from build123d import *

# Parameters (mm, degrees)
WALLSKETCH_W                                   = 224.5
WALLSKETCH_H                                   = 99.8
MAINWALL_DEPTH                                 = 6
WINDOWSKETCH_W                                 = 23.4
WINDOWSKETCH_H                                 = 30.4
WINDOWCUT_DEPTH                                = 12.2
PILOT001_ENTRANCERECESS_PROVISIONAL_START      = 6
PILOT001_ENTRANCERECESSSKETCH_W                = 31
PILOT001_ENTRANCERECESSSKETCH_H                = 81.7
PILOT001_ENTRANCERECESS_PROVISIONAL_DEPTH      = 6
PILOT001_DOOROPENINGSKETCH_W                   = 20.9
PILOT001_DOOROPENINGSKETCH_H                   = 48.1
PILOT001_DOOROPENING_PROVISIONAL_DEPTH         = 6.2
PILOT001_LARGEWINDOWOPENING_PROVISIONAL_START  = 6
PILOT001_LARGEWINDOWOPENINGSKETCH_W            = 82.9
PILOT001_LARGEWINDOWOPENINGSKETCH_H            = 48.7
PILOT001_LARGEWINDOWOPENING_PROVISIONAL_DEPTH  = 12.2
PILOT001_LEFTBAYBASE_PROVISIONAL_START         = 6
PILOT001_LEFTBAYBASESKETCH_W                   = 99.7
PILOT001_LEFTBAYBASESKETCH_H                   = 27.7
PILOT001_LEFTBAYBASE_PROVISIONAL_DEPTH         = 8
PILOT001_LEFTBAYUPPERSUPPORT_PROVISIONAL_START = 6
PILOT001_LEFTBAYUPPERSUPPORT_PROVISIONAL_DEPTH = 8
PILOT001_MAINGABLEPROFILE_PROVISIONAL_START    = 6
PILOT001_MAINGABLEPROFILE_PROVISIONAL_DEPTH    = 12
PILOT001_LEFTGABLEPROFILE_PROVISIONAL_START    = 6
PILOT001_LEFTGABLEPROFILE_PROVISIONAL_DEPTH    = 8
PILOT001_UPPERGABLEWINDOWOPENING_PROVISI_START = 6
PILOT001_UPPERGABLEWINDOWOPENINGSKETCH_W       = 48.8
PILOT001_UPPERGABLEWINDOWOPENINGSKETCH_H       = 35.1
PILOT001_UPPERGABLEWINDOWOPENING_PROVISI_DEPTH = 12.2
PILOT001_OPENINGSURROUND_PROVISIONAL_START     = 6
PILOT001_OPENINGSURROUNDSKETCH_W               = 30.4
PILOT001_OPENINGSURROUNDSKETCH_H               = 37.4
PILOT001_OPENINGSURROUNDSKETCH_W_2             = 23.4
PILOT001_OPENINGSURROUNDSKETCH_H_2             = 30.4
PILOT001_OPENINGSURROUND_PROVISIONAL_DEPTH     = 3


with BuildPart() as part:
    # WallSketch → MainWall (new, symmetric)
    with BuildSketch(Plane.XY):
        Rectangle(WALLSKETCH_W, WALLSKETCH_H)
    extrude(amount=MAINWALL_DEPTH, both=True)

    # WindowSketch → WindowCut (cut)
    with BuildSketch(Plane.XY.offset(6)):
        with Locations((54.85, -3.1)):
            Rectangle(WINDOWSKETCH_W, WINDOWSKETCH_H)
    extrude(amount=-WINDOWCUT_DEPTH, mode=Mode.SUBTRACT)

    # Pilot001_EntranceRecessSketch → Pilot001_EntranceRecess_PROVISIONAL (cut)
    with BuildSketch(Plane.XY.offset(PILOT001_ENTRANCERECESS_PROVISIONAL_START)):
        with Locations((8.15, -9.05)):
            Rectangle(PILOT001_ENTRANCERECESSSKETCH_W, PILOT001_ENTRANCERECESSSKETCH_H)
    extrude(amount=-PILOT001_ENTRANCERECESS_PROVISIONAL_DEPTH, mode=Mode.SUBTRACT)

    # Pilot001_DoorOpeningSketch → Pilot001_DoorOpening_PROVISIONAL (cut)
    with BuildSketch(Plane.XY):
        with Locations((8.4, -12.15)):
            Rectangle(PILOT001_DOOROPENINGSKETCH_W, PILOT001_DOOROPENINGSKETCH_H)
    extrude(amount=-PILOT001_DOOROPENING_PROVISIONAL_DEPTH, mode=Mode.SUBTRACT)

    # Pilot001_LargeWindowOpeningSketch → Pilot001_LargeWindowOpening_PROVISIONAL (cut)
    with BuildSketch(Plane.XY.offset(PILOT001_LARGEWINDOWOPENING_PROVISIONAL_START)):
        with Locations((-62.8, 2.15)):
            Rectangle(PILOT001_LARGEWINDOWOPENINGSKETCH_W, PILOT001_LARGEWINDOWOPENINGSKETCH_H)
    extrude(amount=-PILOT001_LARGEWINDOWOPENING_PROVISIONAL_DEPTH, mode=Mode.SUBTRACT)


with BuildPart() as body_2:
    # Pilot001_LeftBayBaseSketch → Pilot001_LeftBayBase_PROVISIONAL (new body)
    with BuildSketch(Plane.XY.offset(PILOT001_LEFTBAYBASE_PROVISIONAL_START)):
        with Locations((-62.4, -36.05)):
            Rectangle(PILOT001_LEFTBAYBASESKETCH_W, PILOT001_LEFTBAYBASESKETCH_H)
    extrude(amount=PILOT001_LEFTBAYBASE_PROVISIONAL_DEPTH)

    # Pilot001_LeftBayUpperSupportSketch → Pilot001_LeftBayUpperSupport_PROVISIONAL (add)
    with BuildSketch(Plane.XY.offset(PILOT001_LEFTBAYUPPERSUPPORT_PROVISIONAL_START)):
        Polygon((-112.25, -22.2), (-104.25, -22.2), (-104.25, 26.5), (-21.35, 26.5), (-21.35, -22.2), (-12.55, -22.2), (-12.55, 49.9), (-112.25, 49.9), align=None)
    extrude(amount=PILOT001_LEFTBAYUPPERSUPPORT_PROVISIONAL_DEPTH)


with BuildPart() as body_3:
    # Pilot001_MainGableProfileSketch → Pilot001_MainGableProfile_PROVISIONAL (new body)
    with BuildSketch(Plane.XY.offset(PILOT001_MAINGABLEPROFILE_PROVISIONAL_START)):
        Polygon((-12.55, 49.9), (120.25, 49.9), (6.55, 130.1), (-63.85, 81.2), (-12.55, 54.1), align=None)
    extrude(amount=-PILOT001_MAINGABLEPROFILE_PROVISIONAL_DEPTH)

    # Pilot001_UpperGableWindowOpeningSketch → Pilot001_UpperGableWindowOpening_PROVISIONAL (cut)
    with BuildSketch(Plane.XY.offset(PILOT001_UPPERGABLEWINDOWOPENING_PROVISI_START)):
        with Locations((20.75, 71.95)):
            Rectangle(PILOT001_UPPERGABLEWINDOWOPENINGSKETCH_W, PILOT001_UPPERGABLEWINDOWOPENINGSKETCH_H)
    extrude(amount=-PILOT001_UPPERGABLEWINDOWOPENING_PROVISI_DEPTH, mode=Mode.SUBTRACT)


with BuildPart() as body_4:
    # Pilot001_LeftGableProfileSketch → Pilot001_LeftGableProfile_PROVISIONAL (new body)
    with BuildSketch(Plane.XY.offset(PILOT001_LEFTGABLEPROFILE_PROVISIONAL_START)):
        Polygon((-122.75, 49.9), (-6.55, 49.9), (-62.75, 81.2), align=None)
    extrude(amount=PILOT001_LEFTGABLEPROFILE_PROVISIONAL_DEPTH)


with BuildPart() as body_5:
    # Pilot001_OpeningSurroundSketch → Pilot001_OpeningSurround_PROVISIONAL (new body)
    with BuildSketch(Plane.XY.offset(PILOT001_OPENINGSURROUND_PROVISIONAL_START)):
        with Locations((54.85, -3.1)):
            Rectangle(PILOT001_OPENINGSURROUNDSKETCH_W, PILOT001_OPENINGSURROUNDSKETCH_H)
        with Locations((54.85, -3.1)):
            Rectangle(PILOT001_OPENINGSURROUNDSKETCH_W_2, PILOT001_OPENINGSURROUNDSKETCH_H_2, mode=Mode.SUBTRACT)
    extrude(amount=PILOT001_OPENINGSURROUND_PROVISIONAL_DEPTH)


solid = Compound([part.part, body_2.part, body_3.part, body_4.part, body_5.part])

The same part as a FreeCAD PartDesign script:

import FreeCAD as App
import Part
import Sketcher


def add_polygon(sketch, points):
    """Adds a closed chain of lines whose ends are joined by coincident constraints."""
    first, n = sketch.GeometryCount, len(points)
    for a, b in zip(points, points[1:] + points[:1]):
        sketch.addGeometry(Part.LineSegment(App.Vector(*a, 0), App.Vector(*b, 0)), False)
    for i in range(n):
        sketch.addConstraint(Sketcher.Constraint("Coincident", first + i, 2, first + (i + 1) % n, 1))

doc = App.newDocument("Part")
body = doc.addObject("PartDesign::Body", "Body")

sketch1 = body.newObject("Sketcher::SketchObject", "Sketch")
sketch1.AttachmentSupport = (doc.getObject("XY_Plane"), [""])
sketch1.MapMode = "FlatFace"
add_polygon(sketch1, [(-112, 50), (-112, -50), (112, -50), (112, 50)])
sketch1.addConstraint(Sketcher.Constraint("Vertical", 0))
sketch1.addConstraint(Sketcher.Constraint("Horizontal", 1))
sketch1.addConstraint(Sketcher.Constraint("Vertical", 2))
sketch1.addConstraint(Sketcher.Constraint("Horizontal", 3))
sketch1.addConstraint(Sketcher.Constraint("Symmetric", 0, 2, 2, 2, -1, 1))
sketch1.addConstraint(Sketcher.Constraint("DistanceX", 1, 1, 1, 2, 224.5))
sketch1.addConstraint(Sketcher.Constraint("DistanceY", 0, 2, 0, 1, 99.8))
pad1 = body.newObject("PartDesign::Pad", "Pad")
pad1.Profile = sketch1
pad1.Length = 12
pad1.Midplane = True

sketch2 = body.newObject("Sketcher::SketchObject", "Sketch001")
sketch2.AttachmentSupport = (doc.getObject("XY_Plane"), [""])
sketch2.MapMode = "FlatFace"
sketch2.AttachmentOffset = App.Placement(App.Vector(0, 0, 6), App.Rotation())
add_polygon(sketch2, [(43, 12), (43, -18), (67, -18), (67, 12)])
sketch2.addConstraint(Sketcher.Constraint("Vertical", 0))
sketch2.addConstraint(Sketcher.Constraint("Horizontal", 1))
sketch2.addConstraint(Sketcher.Constraint("Vertical", 2))
sketch2.addConstraint(Sketcher.Constraint("Horizontal", 3))
sketch2.addConstraint(Sketcher.Constraint("DistanceX", 1, 1, 1, 2, 23.4))
sketch2.addConstraint(Sketcher.Constraint("DistanceY", 0, 2, 0, 1, 30.4))
sketch2.addConstraint(Sketcher.Constraint("DistanceY", 0, 2, -1, 1, 18.3))
sketch2.addConstraint(Sketcher.Constraint("DistanceX", -1, 1, 0, 2, 43.15))
pocket1 = body.newObject("PartDesign::Pocket", "Pocket")
pocket1.Profile = sketch2
pocket1.Length = 12.2

sketch3 = body.newObject("Sketcher::SketchObject", "Sketch002")
sketch3.AttachmentSupport = (doc.getObject("XY_Plane"), [""])
sketch3.MapMode = "FlatFace"
sketch3.AttachmentOffset = App.Placement(App.Vector(0, 0, 6), App.Rotation())
add_polygon(sketch3, [(-7, 32), (-7, -50), (24, -50), (24, 32)])
sketch3.addConstraint(Sketcher.Constraint("Vertical", 0))
sketch3.addConstraint(Sketcher.Constraint("Horizontal", 1))
sketch3.addConstraint(Sketcher.Constraint("Vertical", 2))
sketch3.addConstraint(Sketcher.Constraint("Horizontal", 3))
sketch3.addConstraint(Sketcher.Constraint("DistanceX", 1, 1, 1, 2, 31.0))
sketch3.addConstraint(Sketcher.Constraint("DistanceY", 0, 2, 0, 1, 81.7))
sketch3.addConstraint(Sketcher.Constraint("DistanceY", 0, 2, -1, 1, 49.9))
sketch3.addConstraint(Sketcher.Constraint("DistanceX", 0, 2, -1, 1, 7.35))
pocket2 = body.newObject("PartDesign::Pocket", "Pocket001")
pocket2.Profile = sketch3
pocket2.Length = 6

sketch4 = body.newObject("Sketcher::SketchObject", "Sketch003")
sketch4.AttachmentSupport = (doc.getObject("XY_Plane"), [""])
sketch4.MapMode = "FlatFace"
add_polygon(sketch4, [(-2, 12), (-2, -36), (19, -36), (19, 12)])
sketch4.addConstraint(Sketcher.Constraint("Vertical", 0))
sketch4.addConstraint(Sketcher.Constraint("Horizontal", 1))
sketch4.addConstraint(Sketcher.Constraint("Vertical", 2))
sketch4.addConstraint(Sketcher.Constraint("Horizontal", 3))
sketch4.addConstraint(Sketcher.Constraint("DistanceX", 1, 1, 1, 2, 20.9))
sketch4.addConstraint(Sketcher.Constraint("DistanceY", 0, 2, 0, 1, 48.1))
sketch4.addConstraint(Sketcher.Constraint("DistanceY", 0, 2, -1, 1, 36.2))
sketch4.addConstraint(Sketcher.Constraint("DistanceX", 0, 2, -1, 1, 2.05))
pocket3 = body.newObject("PartDesign::Pocket", "Pocket002")
pocket3.Profile = sketch4
pocket3.Length = 6.2

sketch5 = body.newObject("Sketcher::SketchObject", "Sketch004")
sketch5.AttachmentSupport = (doc.getObject("XY_Plane"), [""])
sketch5.MapMode = "FlatFace"
sketch5.AttachmentOffset = App.Placement(App.Vector(0, 0, 6), App.Rotation())
add_polygon(sketch5, [(-104, 26), (-104, -22), (-21, -22), (-21, 26)])
sketch5.addConstraint(Sketcher.Constraint("Vertical", 0))
sketch5.addConstraint(Sketcher.Constraint("Horizontal", 1))
sketch5.addConstraint(Sketcher.Constraint("Vertical", 2))
sketch5.addConstraint(Sketcher.Constraint("Horizontal", 3))
sketch5.addConstraint(Sketcher.Constraint("DistanceX", 1, 1, 1, 2, 82.9))
sketch5.addConstraint(Sketcher.Constraint("DistanceY", 0, 2, 0, 1, 48.7))
sketch5.addConstraint(Sketcher.Constraint("DistanceY", 0, 2, -1, 1, 22.2))
sketch5.addConstraint(Sketcher.Constraint("DistanceX", 0, 2, -1, 1, 104.25))
pocket4 = body.newObject("PartDesign::Pocket", "Pocket003")
pocket4.Profile = sketch5
pocket4.Length = 12.2
body2 = doc.addObject("PartDesign::Body", "Body001")

sketch6 = body2.newObject("Sketcher::SketchObject", "Sketch005")
sketch6.AttachmentSupport = (doc.getObject("XY_Plane001"), [""])
sketch6.MapMode = "FlatFace"
sketch6.AttachmentOffset = App.Placement(App.Vector(0, 0, 6), App.Rotation())
add_polygon(sketch6, [(-112, -22), (-112, -50), (-13, -50), (-13, -22)])
sketch6.addConstraint(Sketcher.Constraint("Vertical", 0))
sketch6.addConstraint(Sketcher.Constraint("Horizontal", 1))
sketch6.addConstraint(Sketcher.Constraint("Vertical", 2))
sketch6.addConstraint(Sketcher.Constraint("Horizontal", 3))
sketch6.addConstraint(Sketcher.Constraint("DistanceX", 1, 1, 1, 2, 99.7))
sketch6.addConstraint(Sketcher.Constraint("DistanceY", 0, 2, 0, 1, 27.7))
sketch6.addConstraint(Sketcher.Constraint("DistanceY", 0, 2, -1, 1, 49.9))
sketch6.addConstraint(Sketcher.Constraint("DistanceX", 0, 2, -1, 1, 112.25))
pad2 = body2.newObject("PartDesign::Pad", "Pad001")
pad2.Profile = sketch6
pad2.Length = 8

sketch7 = body2.newObject("Sketcher::SketchObject", "Sketch006")
sketch7.AttachmentSupport = (doc.getObject("XY_Plane001"), [""])
sketch7.MapMode = "FlatFace"
sketch7.AttachmentOffset = App.Placement(App.Vector(0, 0, 6), App.Rotation())
add_polygon(sketch7, [(-112, -22), (-104, -22), (-104, 26), (-21, 26), (-21, -22), (-13, -22), (-13, 50), (-112, 50)])
sketch7.addConstraint(Sketcher.Constraint("Horizontal", 0))
sketch7.addConstraint(Sketcher.Constraint("Vertical", 1))
sketch7.addConstraint(Sketcher.Constraint("Horizontal", 2))
sketch7.addConstraint(Sketcher.Constraint("Vertical", 3))
sketch7.addConstraint(Sketcher.Constraint("Horizontal", 4))
sketch7.addConstraint(Sketcher.Constraint("Vertical", 5))
sketch7.addConstraint(Sketcher.Constraint("Horizontal", 6))
sketch7.addConstraint(Sketcher.Constraint("Vertical", 7))
sketch7.addConstraint(Sketcher.Constraint("Horizontal", 0, 2, 3, 2))
sketch7.addConstraint(Sketcher.Constraint("DistanceX", 0, 1, 0, 2, 8.0))
sketch7.addConstraint(Sketcher.Constraint("DistanceX", 2, 1, 2, 2, 82.9))
sketch7.addConstraint(Sketcher.Constraint("DistanceX", 4, 1, 4, 2, 8.8))
sketch7.addConstraint(Sketcher.Constraint("DistanceY", 1, 1, 1, 2, 48.7))
sketch7.addConstraint(Sketcher.Constraint("DistanceY", 5, 1, 5, 2, 72.1))
sketch7.addConstraint(Sketcher.Constraint("DistanceY", 0, 2, -1, 1, 22.2))
sketch7.addConstraint(Sketcher.Constraint("DistanceX", 0, 2, -1, 1, 104.25))
pad3 = body2.newObject("PartDesign::Pad", "Pad002")
pad3.Profile = sketch7
pad3.Length = 8
body3 = doc.addObject("PartDesign::Body", "Body002")

sketch8 = body3.newObject("Sketcher::SketchObject", "Sketch007")
sketch8.AttachmentSupport = (doc.getObject("XY_Plane002"), [""])
sketch8.MapMode = "FlatFace"
sketch8.AttachmentOffset = App.Placement(App.Vector(0, 0, 6), App.Rotation())
add_polygon(sketch8, [(-12.6, 49.9), (120.2, 49.9), (6.5, 130.1), (-63.9, 81.2), (-12.6, 54.1)])
sketch8.addConstraint(Sketcher.Constraint("Horizontal", 0))
sketch8.addConstraint(Sketcher.Constraint("Vertical", 4))
sketch8.addConstraint(Sketcher.Constraint("DistanceX", 0, 1, 0, 2, 132.8))
sketch8.addConstraint(Sketcher.Constraint("DistanceY", 4, 2, 4, 1, 4.2))
sketch8.addConstraint(Sketcher.Constraint("DistanceY", 3, 2, 1, 2, 76.0))
sketch8.addConstraint(Sketcher.Constraint("DistanceY", -1, 1, 0, 2, 49.9))
sketch8.addConstraint(Sketcher.Constraint("DistanceY", -1, 1, 2, 2, 81.2))
sketch8.addConstraint(Sketcher.Constraint("DistanceX", 1, 2, 0, 2, 113.7))
sketch8.addConstraint(Sketcher.Constraint("DistanceX", 2, 2, 1, 2, 70.4))
sketch8.addConstraint(Sketcher.Constraint("DistanceX", -1, 1, 0, 2, 120.25))
pad4 = body3.newObject("PartDesign::Pad", "Pad003")
pad4.Profile = sketch8
pad4.Length = 12
pad4.Reversed = True

sketch9 = body3.newObject("Sketcher::SketchObject", "Sketch008")
sketch9.AttachmentSupport = (doc.getObject("XY_Plane002"), [""])
sketch9.MapMode = "FlatFace"
sketch9.AttachmentOffset = App.Placement(App.Vector(0, 0, 6), App.Rotation())
add_polygon(sketch9, [(-4, 90), (-4, 54), (45, 54), (45, 90)])
sketch9.addConstraint(Sketcher.Constraint("Vertical", 0))
sketch9.addConstraint(Sketcher.Constraint("Horizontal", 1))
sketch9.addConstraint(Sketcher.Constraint("Vertical", 2))
sketch9.addConstraint(Sketcher.Constraint("Horizontal", 3))
sketch9.addConstraint(Sketcher.Constraint("DistanceX", 1, 1, 1, 2, 48.8))
sketch9.addConstraint(Sketcher.Constraint("DistanceY", 0, 2, 0, 1, 35.1))
sketch9.addConstraint(Sketcher.Constraint("DistanceY", -1, 1, 0, 2, 54.4))
sketch9.addConstraint(Sketcher.Constraint("DistanceX", 0, 2, -1, 1, 3.65))
pocket5 = body3.newObject("PartDesign::Pocket", "Pocket004")
pocket5.Profile = sketch9
pocket5.Length = 12.2
body4 = doc.addObject("PartDesign::Body", "Body003")

sketch10 = body4.newObject("Sketcher::SketchObject", "Sketch009")
sketch10.AttachmentSupport = (doc.getObject("XY_Plane003"), [""])
sketch10.MapMode = "FlatFace"
sketch10.AttachmentOffset = App.Placement(App.Vector(0, 0, 6), App.Rotation())
add_polygon(sketch10, [(-123, 50), (-7, 50), (-63, 81)])
sketch10.addConstraint(Sketcher.Constraint("Horizontal", 0))
sketch10.addConstraint(Sketcher.Constraint("DistanceX", 0, 1, 0, 2, 116.2))
sketch10.addConstraint(Sketcher.Constraint("DistanceX", 2, 2, 1, 2, 60.0))
sketch10.addConstraint(Sketcher.Constraint("DistanceY", -1, 1, 0, 2, 49.9))
sketch10.addConstraint(Sketcher.Constraint("DistanceY", -1, 1, 1, 2, 81.2))
sketch10.addConstraint(Sketcher.Constraint("DistanceX", 0, 2, -1, 1, 6.55))
pad5 = body4.newObject("PartDesign::Pad", "Pad004")
pad5.Profile = sketch10
pad5.Length = 8
body5 = doc.addObject("PartDesign::Body", "Body004")

sketch11 = body5.newObject("Sketcher::SketchObject", "Sketch010")
sketch11.AttachmentSupport = (doc.getObject("XY_Plane004"), [""])
sketch11.MapMode = "FlatFace"
sketch11.AttachmentOffset = App.Placement(App.Vector(0, 0, 6), App.Rotation())
add_polygon(sketch11, [(40, 16), (40, -22), (70, -22), (70, 16)])
add_polygon(sketch11, [(67, -18), (43, -18), (43, 12), (67, 12)])
sketch11.addConstraint(Sketcher.Constraint("Vertical", 0))
sketch11.addConstraint(Sketcher.Constraint("Horizontal", 1))
sketch11.addConstraint(Sketcher.Constraint("Vertical", 2))
sketch11.addConstraint(Sketcher.Constraint("Horizontal", 3))
sketch11.addConstraint(Sketcher.Constraint("Horizontal", 4))
sketch11.addConstraint(Sketcher.Constraint("Vertical", 5))
sketch11.addConstraint(Sketcher.Constraint("Horizontal", 6))
sketch11.addConstraint(Sketcher.Constraint("Vertical", 7))
sketch11.addConstraint(Sketcher.Constraint("Equal", 3, 5))
sketch11.addConstraint(Sketcher.Constraint("DistanceX", 1, 1, 1, 2, 30.4))
sketch11.addConstraint(Sketcher.Constraint("DistanceX", 4, 2, 4, 1, 23.4))
sketch11.addConstraint(Sketcher.Constraint("DistanceY", 0, 2, 0, 1, 37.4))
sketch11.addConstraint(Sketcher.Constraint("DistanceY", 0, 2, -1, 1, 21.8))
sketch11.addConstraint(Sketcher.Constraint("DistanceY", 4, 2, -1, 1, 18.3))
sketch11.addConstraint(Sketcher.Constraint("DistanceX", 0, 2, 4, 2, 3.5))
sketch11.addConstraint(Sketcher.Constraint("DistanceX", -1, 1, 0, 2, 39.65))
pad6 = body5.newObject("PartDesign::Pad", "Pad005")
pad6.Profile = sketch11
pad6.Length = 3

doc.recompute()
